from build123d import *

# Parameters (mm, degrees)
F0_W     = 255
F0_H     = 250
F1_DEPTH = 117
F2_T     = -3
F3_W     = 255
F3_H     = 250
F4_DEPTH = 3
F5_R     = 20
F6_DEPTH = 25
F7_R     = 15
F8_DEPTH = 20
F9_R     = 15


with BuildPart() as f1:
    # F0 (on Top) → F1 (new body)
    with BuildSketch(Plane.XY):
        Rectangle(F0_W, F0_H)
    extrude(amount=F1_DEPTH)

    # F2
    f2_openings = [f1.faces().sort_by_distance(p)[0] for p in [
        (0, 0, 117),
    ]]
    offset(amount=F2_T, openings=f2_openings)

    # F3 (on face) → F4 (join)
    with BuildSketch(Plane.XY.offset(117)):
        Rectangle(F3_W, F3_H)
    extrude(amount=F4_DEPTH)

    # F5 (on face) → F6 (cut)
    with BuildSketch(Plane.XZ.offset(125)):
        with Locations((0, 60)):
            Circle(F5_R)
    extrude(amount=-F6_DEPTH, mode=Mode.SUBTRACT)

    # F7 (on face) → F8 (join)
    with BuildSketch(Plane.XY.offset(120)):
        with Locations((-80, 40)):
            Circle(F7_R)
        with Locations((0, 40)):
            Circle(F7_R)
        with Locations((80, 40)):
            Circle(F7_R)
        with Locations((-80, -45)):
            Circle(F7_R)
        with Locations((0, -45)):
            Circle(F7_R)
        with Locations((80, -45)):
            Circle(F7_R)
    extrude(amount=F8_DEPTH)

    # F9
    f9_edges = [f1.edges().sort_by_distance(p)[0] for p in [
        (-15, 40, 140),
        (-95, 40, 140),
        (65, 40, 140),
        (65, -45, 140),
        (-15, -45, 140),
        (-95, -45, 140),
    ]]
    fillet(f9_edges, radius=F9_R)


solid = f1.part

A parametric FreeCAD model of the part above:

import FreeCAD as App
import Part
import Sketcher
from FreeCAD import Vector
Q = App.Units.Quantity


def edges_at(feature, points):
    """Names of the edges that pass closest to the given points."""
    edges = feature.Shape.Edges
    near = lambda p: min(range(len(edges)), key=lambda i: edges[i].distToShape(Part.Vertex(*p))[0])
    return sorted({f"Edge{near(p) + 1}" for p in points})


def faces_at(feature, points):
    """Names of the faces that lie closest to the given points."""
    faces = feature.Shape.Faces
    near = lambda p: min(range(len(faces)), key=lambda i: faces[i].distToShape(Part.Vertex(*p))[0])
    return sorted({f"Face{near(p) + 1}" for p in points})

doc = App.newDocument("Part")
params = doc.addObject("Spreadsheet::Sheet", "Params")
for row, (alias, value) in enumerate([
    ("sketch1_width", "255 mm"),
    ("sketch1_height", "250 mm"),
    ("pad1_length", "117 mm"),
    ("thickness_wall", "3 mm"),
    ("sketch2_width", "255 mm"),
    ("sketch2_height", "250 mm"),
    ("pad2_length", "3 mm"),
    ("sketch3_diameter", "40 mm"),
    ("pocket1_length", "25 mm"),
    ("sketch4_diameter", "30 mm"),
    ("pad3_length", "20 mm"),
    ("fillet_radius", "15 mm"),
], start=1):
    params.set(f"A{row}", alias)
    params.set(f"B{row}", "=" + value)
    params.setAlias(f"B{row}", alias)

body = doc.addObject("PartDesign::Body", "Body")

# Sketch on XY plane
sketch1 = body.newObject("Sketcher::SketchObject", "Sketch")
sketch1.AttachmentSupport = (doc.getObject("XY_Plane"), [""])
sketch1.MapMode = "FlatFace"
sketch1.addGeometry(Part.LineSegment(Vector(-128, 125, 0), Vector(-128, -125, 0)), False)
sketch1.addGeometry(Part.LineSegment(Vector(-128, -125, 0), Vector(128, -125, 0)), False)
sketch1.addGeometry(Part.LineSegment(Vector(128, -125, 0), Vector(128, 125, 0)), False)
sketch1.addGeometry(Part.LineSegment(Vector(128, 125, 0), Vector(-128, 125, 0)), False)
sketch1.addConstraint(Sketcher.Constraint("Coincident", 0, 2, 1, 1))
sketch1.addConstraint(Sketcher.Constraint("Coincident", 1, 2, 2, 1))
sketch1.addConstraint(Sketcher.Constraint("Coincident", 2, 2, 3, 1))
sketch1.addConstraint(Sketcher.Constraint("Coincident", 3, 2, 0, 1))
sketch1.addConstraint(Sketcher.Constraint("Vertical", 0))
sketch1.addConstraint(Sketcher.Constraint("Horizontal", 1))
sketch1.addConstraint(Sketcher.Constraint("Vertical", 2))
sketch1.addConstraint(Sketcher.Constraint("Horizontal", 3))
sketch1.addConstraint(Sketcher.Constraint("Symmetric", 0, 2, 2, 2, -1, 1))
sketch1.addConstraint(Sketcher.Constraint("DistanceX", 1, 1, 1, 2, Q("255 mm")))
sketch1.addConstraint(Sketcher.Constraint("DistanceY", 0, 2, 0, 1, Q("250 mm")))
sketch1.setExpression("Constraints[9]", "Params.sketch1_width")
sketch1.setExpression("Constraints[10]", "Params.sketch1_height")
pad1 = body.newObject("PartDesign::Pad", "Pad")
pad1.Profile = sketch1
pad1.setExpression("Length", "Params.pad1_length")
doc.recompute()

thickness = body.newObject("PartDesign::Thickness", "Thickness")
thickness.Base = (pad1, faces_at(pad1, [(0, 0, 117)]))
thickness.setExpression("Value", "Params.thickness_wall")
thickness.Reversed = True
thickness.Join = "Arc"

# Sketch on XY plane
sketch2 = body.newObject("Sketcher::SketchObject", "Sketch001")
sketch2.AttachmentSupport = (doc.getObject("XY_Plane"), [""])
sketch2.MapMode = "FlatFace"
sketch2.AttachmentOffset = App.Placement(Vector(0, 0, 117), App.Rotation())
sketch2.addGeometry(Part.LineSegment(Vector(-128, 125, 0), Vector(-128, -125, 0)), False)
sketch2.addGeometry(Part.LineSegment(Vector(-128, -125, 0), Vector(128, -125, 0)), False)
sketch2.addGeometry(Part.LineSegment(Vector(128, -125, 0), Vector(128, 125, 0)), False)
sketch2.addGeometry(Part.LineSegment(Vector(128, 125, 0), Vector(-128, 125, 0)), False)
sketch2.addConstraint(Sketcher.Constraint("Coincident", 0, 2, 1, 1))
sketch2.addConstraint(Sketcher.Constraint("Coincident", 1, 2, 2, 1))
sketch2.addConstraint(Sketcher.Constraint("Coincident", 2, 2, 3, 1))
sketch2.addConstraint(Sketcher.Constraint("Coincident", 3, 2, 0, 1))
sketch2.addConstraint(Sketcher.Constraint("Vertical", 0))
sketch2.addConstraint(Sketcher.Constraint("Horizontal", 1))
sketch2.addConstraint(Sketcher.Constraint("Vertical", 2))
sketch2.addConstraint(Sketcher.Constraint("Horizontal", 3))
sketch2.addConstraint(Sketcher.Constraint("Symmetric", 0, 2, 2, 2, -1, 1))
sketch2.addConstraint(Sketcher.Constraint("DistanceX", 1, 1, 1, 2, Q("255 mm")))
sketch2.addConstraint(Sketcher.Constraint("DistanceY", 0, 2, 0, 1, Q("250 mm")))
sketch2.setExpression("Constraints[9]", "Params.sketch2_width")
sketch2.setExpression("Constraints[10]", "Params.sketch2_height")
pad2 = body.newObject("PartDesign::Pad", "Pad001")
pad2.Profile = sketch2
pad2.setExpression("Length", "Params.pad2_length")

# Sketch on XZ plane
sketch3 = body.newObject("Sketcher::SketchObject", "Sketch002")
sketch3.AttachmentSupport = (doc.getObject("XZ_Plane"), [""])
sketch3.MapMode = "FlatFace"
sketch3.AttachmentOffset = App.Placement(Vector(0, 0, 125), App.Rotation())
sketch3.addGeometry(Part.Circle(Vector(0, 60, 0), Vector(0, 0, 1), 20), False)
sketch3.addConstraint(Sketcher.Constraint("PointOnObject", 0, 3, -2))
sketch3.addConstraint(Sketcher.Constraint("Diameter", 0, Q("40 mm")))
sketch3.addConstraint(Sketcher.Constraint("DistanceY", -1, 1, 0, 3, Q("60 mm")))
sketch3.setExpression("Constraints[1]", "Params.sketch3_diameter")
pocket1 = body.newObject("PartDesign::Pocket", "Pocket")
pocket1.Profile = sketch3
pocket1.setExpression("Length", "Params.pocket1_length")

# Sketch on XY plane
sketch4 = body.newObject("Sketcher::SketchObject", "Sketch003")
sketch4.AttachmentSupport = (doc.getObject("XY_Plane"), [""])
sketch4.MapMode = "FlatFace"
sketch4.AttachmentOffset = App.Placement(Vector(0, 0, 120), App.Rotation())
sketch4.addGeometry(Part.Circle(Vector(-80, 40, 0), Vector(0, 0, 1), 15), False)
sketch4.addGeometry(Part.Circle(Vector(0, 40, 0), Vector(0, 0, 1), 15), False)
sketch4.addGeometry(Part.Circle(Vector(80, 40, 0), Vector(0, 0, 1), 15), False)
sketch4.addGeometry(Part.Circle(Vector(-80, -45, 0), Vector(0, 0, 1), 15), False)
sketch4.addGeometry(Part.Circle(Vector(0, -45, 0), Vector(0, 0, 1), 15), False)
sketch4.addGeometry(Part.Circle(Vector(80, -45, 0), Vector(0, 0, 1), 15), False)
sketch4.addConstraint(Sketcher.Constraint("Equal", 0, 1))
sketch4.addConstraint(Sketcher.Constraint("Equal", 1, 2))
sketch4.addConstraint(Sketcher.Constraint("Equal", 2, 3))
sketch4.addConstraint(Sketcher.Constraint("Equal", 3, 4))
sketch4.addConstraint(Sketcher.Constraint("Equal", 4, 5))
sketch4.addConstraint(Sketcher.Constraint("Symmetric", 0, 3, 2, 3, -2))
sketch4.addConstraint(Sketcher.Constraint("Symmetric", 3, 3, 5, 3, -2))
sketch4.addConstraint(Sketcher.Constraint("PointOnObject", 1, 3, -2))
sketch4.addConstraint(Sketcher.Constraint("PointOnObject", 4, 3, -2))
sketch4.addConstraint(Sketcher.Constraint("Horizontal", 0, 3, 1, 3))
sketch4.addConstraint(Sketcher.Constraint("Horizontal", 3, 3, 4, 3))
sketch4.addConstraint(Sketcher.Constraint("Vertical", 0, 3, 3, 3))
sketch4.addConstraint(Sketcher.Constraint("Diameter", 0, Q("30 mm")))
sketch4.addConstraint(Sketcher.Constraint("DistanceX", 0, 3, -1, 1, Q("80 mm")))
sketch4.addConstraint(Sketcher.Constraint("DistanceY", -1, 1, 0, 3, Q("40 mm")))
sketch4.addConstraint(Sketcher.Constraint("DistanceY", 3, 3, -1, 1, Q("45 mm")))
sketch4.setExpression("Constraints[12]", "Params.sketch4_diameter")
pad3 = body.newObject("PartDesign::Pad", "Pad002")
pad3.Profile = sketch4
pad3.setExpression("Length", "Params.pad3_length")
doc.recompute()

fillet = body.newObject("PartDesign::Fillet", "Fillet")
fillet.Base = (pad3, edges_at(pad3, [
    (-15, 40, 140),
    (-95, 40, 140),
    (65, 40, 140),
    (65, -45, 140),
    (-15, -45, 140),
    (-95, -45, 140),
]))
fillet.setExpression("Radius", "Params.fillet_radius")

doc.recompute()
